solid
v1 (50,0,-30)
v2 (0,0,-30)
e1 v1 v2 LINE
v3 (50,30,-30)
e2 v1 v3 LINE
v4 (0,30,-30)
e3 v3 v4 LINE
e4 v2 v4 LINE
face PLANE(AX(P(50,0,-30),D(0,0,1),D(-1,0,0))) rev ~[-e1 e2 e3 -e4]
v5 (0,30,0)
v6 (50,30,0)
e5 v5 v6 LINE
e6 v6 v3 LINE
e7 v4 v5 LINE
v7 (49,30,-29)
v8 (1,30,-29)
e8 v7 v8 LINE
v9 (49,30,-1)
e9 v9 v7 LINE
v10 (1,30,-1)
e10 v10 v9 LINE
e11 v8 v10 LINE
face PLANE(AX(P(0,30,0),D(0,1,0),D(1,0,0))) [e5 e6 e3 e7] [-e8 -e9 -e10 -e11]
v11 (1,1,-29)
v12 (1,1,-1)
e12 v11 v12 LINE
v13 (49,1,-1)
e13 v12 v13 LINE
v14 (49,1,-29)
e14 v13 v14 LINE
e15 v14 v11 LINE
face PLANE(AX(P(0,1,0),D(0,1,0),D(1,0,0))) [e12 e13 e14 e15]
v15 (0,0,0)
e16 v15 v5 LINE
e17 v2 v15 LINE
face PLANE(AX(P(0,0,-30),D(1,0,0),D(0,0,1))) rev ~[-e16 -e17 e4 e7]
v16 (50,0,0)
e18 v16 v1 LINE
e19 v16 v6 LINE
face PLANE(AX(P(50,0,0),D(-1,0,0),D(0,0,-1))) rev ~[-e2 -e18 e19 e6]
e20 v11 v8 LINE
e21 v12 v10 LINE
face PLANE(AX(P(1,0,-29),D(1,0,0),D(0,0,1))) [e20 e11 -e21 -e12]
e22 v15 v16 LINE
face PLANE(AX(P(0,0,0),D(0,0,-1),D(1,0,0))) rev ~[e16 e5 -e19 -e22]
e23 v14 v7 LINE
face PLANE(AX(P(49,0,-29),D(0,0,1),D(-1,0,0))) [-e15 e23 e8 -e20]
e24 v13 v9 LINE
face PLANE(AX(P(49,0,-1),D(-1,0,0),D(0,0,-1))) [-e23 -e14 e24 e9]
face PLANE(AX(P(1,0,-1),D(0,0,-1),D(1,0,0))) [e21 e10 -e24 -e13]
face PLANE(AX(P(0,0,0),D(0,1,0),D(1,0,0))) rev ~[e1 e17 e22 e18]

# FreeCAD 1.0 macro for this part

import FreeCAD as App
import Part
import Sketcher

V = App.Vector
Q = App.Units.Quantity

doc = App.newDocument("Part")
body = doc.addObject("PartDesign::Body", "Body")

sketch1 = body.newObject("Sketcher::SketchObject", "Sketch")
sketch1.AttachmentSupport = (doc.getObject("XZ_Plane"), [""])
sketch1.MapMode = "FlatFace"
sketch1.addGeometry([
    Part.LineSegment(V(0, -30, 0), V(0, 0, 0)),
    Part.LineSegment(V(0, 0, 0), V(50, 0, 0)),
    Part.LineSegment(V(50, 0, 0), V(50, -30, 0)),
    Part.LineSegment(V(50, -30, 0), V(0, -30, 0)),
    Part.LineSegment(V(1, -29, 0), V(49, -29, 0)),
    Part.LineSegment(V(49, -29, 0), V(49, -1, 0)),
    Part.LineSegment(V(49, -1, 0), V(1, -1, 0)),
    Part.LineSegment(V(1, -1, 0), V(1, -29, 0)),
], False)
sketch1.addConstraint([
    Sketcher.Constraint("Coincident", 0, 2, 1, 1),
    Sketcher.Constraint("Coincident", 1, 2, 2, 1),
    Sketcher.Constraint("Coincident", 2, 2, 3, 1),
    Sketcher.Constraint("Coincident", 3, 2, 0, 1),
    Sketcher.Constraint("Coincident", 4, 2, 5, 1),
    Sketcher.Constraint("Coincident", 5, 2, 6, 1),
    Sketcher.Constraint("Coincident", 6, 2, 7, 1),
    Sketcher.Constraint("Coincident", 7, 2, 4, 1),
    Sketcher.Constraint("Vertical", 0),
    Sketcher.Constraint("Horizontal", 1),
    Sketcher.Constraint("Vertical", 2),
    Sketcher.Constraint("Horizontal", 3),
    Sketcher.Constraint("Horizontal", 4),
    Sketcher.Constraint("Vertical", 5),
    Sketcher.Constraint("Horizontal", 6),
    Sketcher.Constraint("Vertical", 7),
    Sketcher.Constraint("Coincident", 0, 2, -1, 1),
    Sketcher.Constraint("DistanceX", 1, 1, 1, 2, Q("50 mm")),
    Sketcher.Constraint("DistanceY", 0, 1, 0, 2, Q("30 mm")),
    Sketcher.Constraint("DistanceX", 4, 1, 4, 2, Q("48 mm")),
    Sketcher.Constraint("DistanceY", 5, 1, 5, 2, Q("28 mm")),
    Sketcher.Constraint("DistanceX", -1, 1, 4, 2, Q("49 mm")),
    Sketcher.Constraint("DistanceY", 4, 2, -1, 1, Q("29 mm")),
])
pad1 = body.newObject("PartDesign::Pad", "Pad")
pad1.Profile = sketch1
pad1.Length = 30
pad1.Reversed = True

sketch2 = body.newObject("Sketcher::SketchObject", "Sketch001")
sketch2.AttachmentSupport = (doc.getObject("XZ_Plane"), [""])
sketch2.MapMode = "FlatFace"
sketch2.addGeometry([
    Part.LineSegment(V(49, -1, 0), V(49, -29, 0)),
    Part.LineSegment(V(49, -29, 0), V(1, -29, 0)),
    Part.LineSegment(V(1, -29, 0), V(1, -1, 0)),
    Part.LineSegment(V(1, -1, 0), V(49, -1, 0)),
], False)
sketch2.addConstraint([
    Sketcher.Constraint("Coincident", 0, 2, 1, 1),
    Sketcher.Constraint("Coincident", 1, 2, 2, 1),
    Sketcher.Constraint("Coincident", 2, 2, 3, 1),
    Sketcher.Constraint("Coincident", 3, 2, 0, 1),
    Sketcher.Constraint("Vertical", 0),
    Sketcher.Constraint("Horizontal", 1),
    Sketcher.Constraint("Vertical", 2),
    Sketcher.Constraint("Horizontal", 3),
    Sketcher.Constraint("DistanceX", 1, 2, 1, 1, Q("48 mm")),
    Sketcher.Constraint("DistanceY", 0, 2, 0, 1, Q("28 mm")),
    Sketcher.Constraint("DistanceX", -1, 1, 0, 2, Q("49 mm")),
    Sketcher.Constraint("DistanceY", 0, 2, -1, 1, Q("29 mm")),
])
pad2 = body.newObject("PartDesign::Pad", "Pad001")
pad2.Profile = sketch2
pad2.Length = 1
pad2.Reversed = True

doc.recompute()
